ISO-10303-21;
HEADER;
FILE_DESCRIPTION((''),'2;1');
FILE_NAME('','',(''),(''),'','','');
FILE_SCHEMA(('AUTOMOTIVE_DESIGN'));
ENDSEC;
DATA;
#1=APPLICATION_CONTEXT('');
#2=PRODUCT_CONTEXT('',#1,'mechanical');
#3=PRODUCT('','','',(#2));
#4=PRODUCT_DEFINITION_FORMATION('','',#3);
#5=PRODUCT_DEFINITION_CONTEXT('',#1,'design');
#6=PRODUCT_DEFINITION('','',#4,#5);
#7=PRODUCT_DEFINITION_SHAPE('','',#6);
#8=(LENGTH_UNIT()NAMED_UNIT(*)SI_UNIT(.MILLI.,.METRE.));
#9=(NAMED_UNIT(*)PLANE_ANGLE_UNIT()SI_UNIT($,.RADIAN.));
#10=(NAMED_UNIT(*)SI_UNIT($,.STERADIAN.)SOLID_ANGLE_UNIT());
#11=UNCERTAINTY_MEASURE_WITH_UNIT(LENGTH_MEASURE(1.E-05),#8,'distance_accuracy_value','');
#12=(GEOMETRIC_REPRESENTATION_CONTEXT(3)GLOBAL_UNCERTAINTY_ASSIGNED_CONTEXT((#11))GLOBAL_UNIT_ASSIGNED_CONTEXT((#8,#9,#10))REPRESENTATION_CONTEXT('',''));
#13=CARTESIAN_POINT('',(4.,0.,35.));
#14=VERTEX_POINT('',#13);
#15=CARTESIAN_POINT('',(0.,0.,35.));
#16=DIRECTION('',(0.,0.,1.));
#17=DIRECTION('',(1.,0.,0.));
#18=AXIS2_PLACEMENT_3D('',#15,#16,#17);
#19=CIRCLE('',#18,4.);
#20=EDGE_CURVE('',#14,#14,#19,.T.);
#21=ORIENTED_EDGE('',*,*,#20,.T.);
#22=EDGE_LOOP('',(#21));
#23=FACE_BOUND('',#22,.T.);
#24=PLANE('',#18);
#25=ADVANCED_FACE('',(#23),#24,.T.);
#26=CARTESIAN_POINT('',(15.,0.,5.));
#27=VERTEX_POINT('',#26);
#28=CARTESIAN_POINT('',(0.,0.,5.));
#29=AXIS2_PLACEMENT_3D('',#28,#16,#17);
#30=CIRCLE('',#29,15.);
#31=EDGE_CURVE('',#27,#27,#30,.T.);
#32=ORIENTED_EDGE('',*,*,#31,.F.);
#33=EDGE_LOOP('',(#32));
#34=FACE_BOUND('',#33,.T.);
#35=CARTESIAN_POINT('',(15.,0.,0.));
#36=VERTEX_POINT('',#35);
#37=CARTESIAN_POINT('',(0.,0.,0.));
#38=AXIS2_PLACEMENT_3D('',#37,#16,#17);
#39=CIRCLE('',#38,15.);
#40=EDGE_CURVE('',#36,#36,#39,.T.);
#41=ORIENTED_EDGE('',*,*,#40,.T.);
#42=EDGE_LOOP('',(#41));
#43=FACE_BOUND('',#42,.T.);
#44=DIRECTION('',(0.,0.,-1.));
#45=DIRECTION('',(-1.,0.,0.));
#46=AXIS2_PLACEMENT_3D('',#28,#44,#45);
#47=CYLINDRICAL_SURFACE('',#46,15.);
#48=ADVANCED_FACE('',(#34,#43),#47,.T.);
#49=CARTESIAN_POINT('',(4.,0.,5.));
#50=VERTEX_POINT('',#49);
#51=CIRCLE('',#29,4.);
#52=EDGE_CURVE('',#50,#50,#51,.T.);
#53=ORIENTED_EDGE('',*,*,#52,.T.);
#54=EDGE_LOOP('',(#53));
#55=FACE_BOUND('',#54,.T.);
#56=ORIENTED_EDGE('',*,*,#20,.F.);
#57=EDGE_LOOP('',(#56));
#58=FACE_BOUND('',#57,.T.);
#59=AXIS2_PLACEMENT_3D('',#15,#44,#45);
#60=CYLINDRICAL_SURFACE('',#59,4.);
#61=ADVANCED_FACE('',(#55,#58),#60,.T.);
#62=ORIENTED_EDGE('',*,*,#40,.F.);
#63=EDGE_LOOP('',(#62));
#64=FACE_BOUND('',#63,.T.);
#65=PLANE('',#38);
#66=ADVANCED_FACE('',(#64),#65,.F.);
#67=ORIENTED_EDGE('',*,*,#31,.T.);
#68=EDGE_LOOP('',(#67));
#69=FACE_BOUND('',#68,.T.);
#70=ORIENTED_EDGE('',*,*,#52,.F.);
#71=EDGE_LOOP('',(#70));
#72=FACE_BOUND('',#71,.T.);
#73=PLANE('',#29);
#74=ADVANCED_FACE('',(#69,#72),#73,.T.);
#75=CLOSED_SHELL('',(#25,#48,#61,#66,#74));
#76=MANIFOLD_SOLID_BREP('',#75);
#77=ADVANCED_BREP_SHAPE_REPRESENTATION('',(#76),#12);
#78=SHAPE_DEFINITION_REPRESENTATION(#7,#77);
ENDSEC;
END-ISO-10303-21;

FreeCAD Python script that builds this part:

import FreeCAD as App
import Part
import Sketcher
Q = App.Units.Quantity

doc = App.newDocument("Part")
body = doc.addObject("PartDesign::Body", "Body")

# Sketch on XY plane
sketch1 = body.newObject("Sketcher::SketchObject", "Sketch")
sketch1.AttachmentSupport = (doc.getObject("XY_Plane"), [""])
sketch1.MapMode = "FlatFace"
sketch1.addGeometry(Part.Circle(App.Vector(0, 0, 0), App.Vector(0, 0, 1), 15), False)
sketch1.addConstraint([
    Sketcher.Constraint("Coincident", 0, 3, -1, 1),
    Sketcher.Constraint("Diameter", 0, Q("30 mm")),
])
pad1 = body.newObject("PartDesign::Pad", "Pad")
pad1.Profile = sketch1
pad1.Length = 5

# Sketch on XY plane
sketch2 = body.newObject("Sketcher::SketchObject", "Sketch001")
sketch2.AttachmentSupport = (doc.getObject("XY_Plane"), [""])
sketch2.MapMode = "FlatFace"
sketch2.AttachmentOffset = App.Placement(App.Vector(0, 0, 5), App.Rotation())
sketch2.addGeometry(Part.Circle(App.Vector(0, 0, 0), App.Vector(0, 0, 1), 4), False)
sketch2.addConstraint([
    Sketcher.Constraint("Coincident", 0, 3, -1, 1),
    Sketcher.Constraint("Diameter", 0, Q("8 mm")),
])
pad2 = body.newObject("PartDesign::Pad", "Pad001")
pad2.Profile = sketch2
pad2.Length = 30

doc.recompute()
